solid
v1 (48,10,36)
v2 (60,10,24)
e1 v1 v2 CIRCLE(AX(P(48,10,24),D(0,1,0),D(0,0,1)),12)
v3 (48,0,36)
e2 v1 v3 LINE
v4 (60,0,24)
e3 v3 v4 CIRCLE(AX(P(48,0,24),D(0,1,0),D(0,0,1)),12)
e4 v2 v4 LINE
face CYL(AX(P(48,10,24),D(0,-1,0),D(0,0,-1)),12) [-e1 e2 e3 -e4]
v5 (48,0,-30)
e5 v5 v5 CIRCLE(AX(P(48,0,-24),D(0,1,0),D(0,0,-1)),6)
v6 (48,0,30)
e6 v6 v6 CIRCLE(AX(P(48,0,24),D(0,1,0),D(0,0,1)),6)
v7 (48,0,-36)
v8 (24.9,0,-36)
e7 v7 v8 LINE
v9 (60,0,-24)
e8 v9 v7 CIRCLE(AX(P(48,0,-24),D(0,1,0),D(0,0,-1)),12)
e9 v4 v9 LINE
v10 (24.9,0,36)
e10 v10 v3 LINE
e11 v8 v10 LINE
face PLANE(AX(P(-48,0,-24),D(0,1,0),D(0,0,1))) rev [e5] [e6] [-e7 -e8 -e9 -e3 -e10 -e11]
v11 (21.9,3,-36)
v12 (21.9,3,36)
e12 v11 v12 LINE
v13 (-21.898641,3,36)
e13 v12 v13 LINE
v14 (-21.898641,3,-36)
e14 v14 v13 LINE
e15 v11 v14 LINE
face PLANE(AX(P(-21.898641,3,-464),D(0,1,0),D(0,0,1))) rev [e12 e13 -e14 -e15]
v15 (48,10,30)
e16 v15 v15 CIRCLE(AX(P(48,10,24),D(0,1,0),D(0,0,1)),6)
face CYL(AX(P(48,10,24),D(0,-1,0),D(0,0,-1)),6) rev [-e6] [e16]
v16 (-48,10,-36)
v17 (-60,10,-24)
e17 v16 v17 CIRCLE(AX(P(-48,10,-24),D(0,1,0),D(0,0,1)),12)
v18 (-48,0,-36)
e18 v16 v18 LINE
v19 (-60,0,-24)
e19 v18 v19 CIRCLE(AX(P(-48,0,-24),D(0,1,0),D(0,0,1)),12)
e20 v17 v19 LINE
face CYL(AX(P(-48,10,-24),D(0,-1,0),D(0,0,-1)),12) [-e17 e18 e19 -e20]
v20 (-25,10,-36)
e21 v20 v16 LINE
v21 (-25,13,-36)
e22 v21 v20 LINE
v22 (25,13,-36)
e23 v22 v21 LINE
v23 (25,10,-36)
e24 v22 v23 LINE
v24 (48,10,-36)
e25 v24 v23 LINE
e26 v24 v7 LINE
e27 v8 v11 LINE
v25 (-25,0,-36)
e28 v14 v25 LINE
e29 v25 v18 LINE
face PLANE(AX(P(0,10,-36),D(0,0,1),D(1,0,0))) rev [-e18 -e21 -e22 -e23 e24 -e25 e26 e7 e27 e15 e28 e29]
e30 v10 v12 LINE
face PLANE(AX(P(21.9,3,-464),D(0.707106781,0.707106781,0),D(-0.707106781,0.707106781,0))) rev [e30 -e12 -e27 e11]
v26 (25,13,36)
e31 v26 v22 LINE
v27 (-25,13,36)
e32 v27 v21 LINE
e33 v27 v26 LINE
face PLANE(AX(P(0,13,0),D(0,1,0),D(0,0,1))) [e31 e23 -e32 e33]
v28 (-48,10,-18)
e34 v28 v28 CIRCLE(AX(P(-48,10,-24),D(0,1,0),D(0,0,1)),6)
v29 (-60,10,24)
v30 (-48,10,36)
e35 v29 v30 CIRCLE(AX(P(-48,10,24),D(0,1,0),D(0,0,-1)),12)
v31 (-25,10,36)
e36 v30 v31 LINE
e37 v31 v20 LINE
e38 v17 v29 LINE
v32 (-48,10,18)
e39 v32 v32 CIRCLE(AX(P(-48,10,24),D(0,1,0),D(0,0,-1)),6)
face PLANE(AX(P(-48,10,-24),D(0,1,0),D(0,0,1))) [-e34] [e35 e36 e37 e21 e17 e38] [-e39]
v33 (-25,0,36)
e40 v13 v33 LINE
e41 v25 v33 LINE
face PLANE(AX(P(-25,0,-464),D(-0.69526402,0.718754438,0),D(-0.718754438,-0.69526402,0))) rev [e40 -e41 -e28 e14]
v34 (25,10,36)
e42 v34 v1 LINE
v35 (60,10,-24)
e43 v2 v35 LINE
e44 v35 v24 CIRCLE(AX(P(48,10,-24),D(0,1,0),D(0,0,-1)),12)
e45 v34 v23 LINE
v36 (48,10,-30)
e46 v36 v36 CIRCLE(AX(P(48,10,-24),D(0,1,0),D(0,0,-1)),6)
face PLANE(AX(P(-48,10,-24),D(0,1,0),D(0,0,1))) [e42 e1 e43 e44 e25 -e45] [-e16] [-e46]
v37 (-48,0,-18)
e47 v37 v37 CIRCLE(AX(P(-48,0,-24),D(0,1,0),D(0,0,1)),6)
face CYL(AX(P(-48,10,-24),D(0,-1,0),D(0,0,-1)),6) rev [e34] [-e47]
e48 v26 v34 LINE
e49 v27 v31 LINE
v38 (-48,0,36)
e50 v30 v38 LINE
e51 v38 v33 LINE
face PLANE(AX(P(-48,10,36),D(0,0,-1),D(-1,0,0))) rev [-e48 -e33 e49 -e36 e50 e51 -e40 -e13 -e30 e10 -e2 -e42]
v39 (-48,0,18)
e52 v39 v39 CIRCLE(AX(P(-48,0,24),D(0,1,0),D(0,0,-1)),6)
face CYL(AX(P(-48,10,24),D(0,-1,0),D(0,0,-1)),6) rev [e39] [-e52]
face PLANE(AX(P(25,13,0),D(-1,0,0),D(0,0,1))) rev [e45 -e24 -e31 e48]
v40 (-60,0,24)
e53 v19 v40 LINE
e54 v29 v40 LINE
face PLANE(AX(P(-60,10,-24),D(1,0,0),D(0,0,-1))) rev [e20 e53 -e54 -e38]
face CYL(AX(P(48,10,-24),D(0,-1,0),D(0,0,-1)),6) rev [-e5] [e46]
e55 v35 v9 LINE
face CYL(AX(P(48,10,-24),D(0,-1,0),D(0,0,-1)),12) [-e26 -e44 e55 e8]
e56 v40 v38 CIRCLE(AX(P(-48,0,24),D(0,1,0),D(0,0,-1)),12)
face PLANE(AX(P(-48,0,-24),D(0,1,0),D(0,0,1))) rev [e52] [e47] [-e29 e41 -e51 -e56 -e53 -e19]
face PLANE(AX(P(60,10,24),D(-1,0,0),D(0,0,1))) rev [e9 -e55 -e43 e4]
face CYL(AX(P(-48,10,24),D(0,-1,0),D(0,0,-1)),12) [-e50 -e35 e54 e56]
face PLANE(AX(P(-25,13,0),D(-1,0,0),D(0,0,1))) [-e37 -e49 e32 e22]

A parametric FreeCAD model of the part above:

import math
import FreeCAD as App
import Part
import Sketcher

V = App.Vector
Q = App.Units.Quantity


def add_polygon(sketch, points):
    """Adds a closed chain of lines whose ends are joined by coincident constraints."""
    first, n = sketch.GeometryCount, len(points)
    for a, b in zip(points, points[1:] + points[:1]):
        sketch.addGeometry(Part.LineSegment(App.Vector(*a, 0), App.Vector(*b, 0)), False)
    for i in range(n):
        sketch.addConstraint(Sketcher.Constraint("Coincident", first + i, 2, first + (i + 1) % n, 1))

doc = App.newDocument("Part")
body = doc.addObject("PartDesign::Body", "Body")

# Sketch on XZ plane
sketch1 = body.newObject("Sketcher::SketchObject", "Sketch")
sketch1.AttachmentSupport = (doc.getObject("XZ_Plane"), [""])
sketch1.MapMode = "FlatFace"
sketch1.addGeometry([
    Part.ArcOfCircle(Part.Circle(V(48, -24, 0), V(0, 0, 1), 12), math.radians(-90), math.radians(0)),  # 0
    Part.LineSegment(V(48, -36, 0), V(-48, -36, 0)),  # 1
    Part.ArcOfCircle(Part.Circle(V(-48, -24, 0), V(0, 0, 1), 12), math.radians(-180), math.radians(-90)),  # 2
    Part.LineSegment(V(-60, -24, 0), V(-60, 24, 0)),  # 3
    Part.ArcOfCircle(Part.Circle(V(-48, 24, 0), V(0, 0, 1), 12), math.radians(90), math.radians(180)),  # 4
    Part.LineSegment(V(-48, 36, 0), V(48, 36, 0)),  # 5
    Part.ArcOfCircle(Part.Circle(V(48, 24, 0), V(0, 0, 1), 12), math.radians(0), math.radians(90)),  # 6
    Part.LineSegment(V(60, 24, 0), V(60, -24, 0)),  # 7
    Part.Circle(V(48, 24, 0), V(0, 0, 1), 6),  # 8
    Part.Circle(V(-48, 24, 0), V(0, 0, 1), 6),  # 9
    Part.Circle(V(48, -24, 0), V(0, 0, 1), 6),  # 10
    Part.Circle(V(-48, -24, 0), V(0, 0, 1), 6),  # 11
], False)
sketch1.addConstraint([
    Sketcher.Constraint("Tangent", 0, 1, 1, 1),
    Sketcher.Constraint("Tangent", 1, 2, 2, 2),
    Sketcher.Constraint("Tangent", 2, 1, 3, 1),
    Sketcher.Constraint("Tangent", 3, 2, 4, 2),
    Sketcher.Constraint("Tangent", 4, 1, 5, 1),
    Sketcher.Constraint("Tangent", 5, 2, 6, 2),
    Sketcher.Constraint("Tangent", 6, 1, 7, 1),
    Sketcher.Constraint("Tangent", 7, 2, 0, 2),
    Sketcher.Constraint("Horizontal", 1),
    Sketcher.Constraint("Vertical", 3),
    Sketcher.Constraint("Horizontal", 5),
    Sketcher.Constraint("Vertical", 7),
    Sketcher.Constraint("Coincident", 8, 3, 6, 3),
    Sketcher.Constraint("Coincident", 9, 3, 4, 3),
    Sketcher.Constraint("Coincident", 10, 3, 0, 3),
    Sketcher.Constraint("Coincident", 11, 3, 2, 3),
    Sketcher.Constraint("Equal", 0, 2),
    Sketcher.Constraint("Equal", 2, 4),
    Sketcher.Constraint("Equal", 4, 6),
    Sketcher.Constraint("Equal", 8, 9),
    Sketcher.Constraint("Equal", 9, 10),
    Sketcher.Constraint("Equal", 10, 11),
    Sketcher.Constraint("Symmetric", 0, 3, 4, 3, -1, 1),
    Sketcher.Constraint("Diameter", 8, 12.0),
    Sketcher.Constraint("Radius", 0, 12.0),
    Sketcher.Constraint("DistanceX", 1, 2, 1, 1, 96.0),
    Sketcher.Constraint("DistanceY", 3, 1, 3, 2, 48.0),
])
pad1 = body.newObject("PartDesign::Pad", "Pad")
pad1.Profile = sketch1
pad1.Length = 10
pad1.Reversed = True

# Sketch on XZ plane
sketch2 = body.newObject("Sketcher::SketchObject", "Sketch001")
sketch2.AttachmentSupport = (doc.getObject("XZ_Plane"), [""])
sketch2.MapMode = "FlatFace"
sketch2.AttachmentOffset = App.Placement(V(0, 0, -10), App.Rotation())
add_polygon(sketch2, [(-25, -36), (-25, 36), (25, 36), (25, -36)])  # lines 0-3
sketch2.addConstraint([
    Sketcher.Constraint("Vertical", 0),
    Sketcher.Constraint("Horizontal", 1),
    Sketcher.Constraint("Vertical", 2),
    Sketcher.Constraint("Horizontal", 3),
    Sketcher.Constraint("Symmetric", 0, 2, 2, 2, -1, 1),
    Sketcher.Constraint("DistanceX", 1, 1, 1, 2, 50.0),
    Sketcher.Constraint("DistanceY", 0, 1, 0, 2, 72.0),
])
pad2 = body.newObject("PartDesign::Pad", "Pad001")
pad2.Profile = sketch2
pad2.Length = 3
pad2.Reversed = True

# Sketch on XY plane
sketch3 = body.newObject("Sketcher::SketchObject", "Sketch002")
sketch3.AttachmentSupport = (doc.getObject("XY_Plane"), [""])
sketch3.MapMode = "FlatFace"
sketch3.AttachmentOffset = App.Placement(V(0, 0, 36), App.Rotation())
add_polygon(sketch3, [(21.9, 3), (-21.9, 3), (-25, 0), (24.9, 0)])  # lines 0-3
sketch3.addConstraint([
    Sketcher.Constraint("Horizontal", 0),
    Sketcher.Constraint("Horizontal", 2),
    Sketcher.Constraint("PointOnObject", 1, 2, -1),
    Sketcher.Constraint("Angle", 3, Q("135 deg")),
    Sketcher.Constraint("DistanceX", 2, 1, 2, 2, 49.9),
    Sketcher.Constraint("DistanceY", -1, 1, 0, 2, 3.0),
    Sketcher.Constraint("DistanceX", 1, 2, -1, 1, 25.0),
    Sketcher.Constraint("DistanceX", 0, 2, 0, 1, 43.798641),
])
pocket1 = body.newObject("PartDesign::Pocket", "Pocket")
pocket1.Profile = sketch3
pocket1.Length = 500

doc.recompute()
